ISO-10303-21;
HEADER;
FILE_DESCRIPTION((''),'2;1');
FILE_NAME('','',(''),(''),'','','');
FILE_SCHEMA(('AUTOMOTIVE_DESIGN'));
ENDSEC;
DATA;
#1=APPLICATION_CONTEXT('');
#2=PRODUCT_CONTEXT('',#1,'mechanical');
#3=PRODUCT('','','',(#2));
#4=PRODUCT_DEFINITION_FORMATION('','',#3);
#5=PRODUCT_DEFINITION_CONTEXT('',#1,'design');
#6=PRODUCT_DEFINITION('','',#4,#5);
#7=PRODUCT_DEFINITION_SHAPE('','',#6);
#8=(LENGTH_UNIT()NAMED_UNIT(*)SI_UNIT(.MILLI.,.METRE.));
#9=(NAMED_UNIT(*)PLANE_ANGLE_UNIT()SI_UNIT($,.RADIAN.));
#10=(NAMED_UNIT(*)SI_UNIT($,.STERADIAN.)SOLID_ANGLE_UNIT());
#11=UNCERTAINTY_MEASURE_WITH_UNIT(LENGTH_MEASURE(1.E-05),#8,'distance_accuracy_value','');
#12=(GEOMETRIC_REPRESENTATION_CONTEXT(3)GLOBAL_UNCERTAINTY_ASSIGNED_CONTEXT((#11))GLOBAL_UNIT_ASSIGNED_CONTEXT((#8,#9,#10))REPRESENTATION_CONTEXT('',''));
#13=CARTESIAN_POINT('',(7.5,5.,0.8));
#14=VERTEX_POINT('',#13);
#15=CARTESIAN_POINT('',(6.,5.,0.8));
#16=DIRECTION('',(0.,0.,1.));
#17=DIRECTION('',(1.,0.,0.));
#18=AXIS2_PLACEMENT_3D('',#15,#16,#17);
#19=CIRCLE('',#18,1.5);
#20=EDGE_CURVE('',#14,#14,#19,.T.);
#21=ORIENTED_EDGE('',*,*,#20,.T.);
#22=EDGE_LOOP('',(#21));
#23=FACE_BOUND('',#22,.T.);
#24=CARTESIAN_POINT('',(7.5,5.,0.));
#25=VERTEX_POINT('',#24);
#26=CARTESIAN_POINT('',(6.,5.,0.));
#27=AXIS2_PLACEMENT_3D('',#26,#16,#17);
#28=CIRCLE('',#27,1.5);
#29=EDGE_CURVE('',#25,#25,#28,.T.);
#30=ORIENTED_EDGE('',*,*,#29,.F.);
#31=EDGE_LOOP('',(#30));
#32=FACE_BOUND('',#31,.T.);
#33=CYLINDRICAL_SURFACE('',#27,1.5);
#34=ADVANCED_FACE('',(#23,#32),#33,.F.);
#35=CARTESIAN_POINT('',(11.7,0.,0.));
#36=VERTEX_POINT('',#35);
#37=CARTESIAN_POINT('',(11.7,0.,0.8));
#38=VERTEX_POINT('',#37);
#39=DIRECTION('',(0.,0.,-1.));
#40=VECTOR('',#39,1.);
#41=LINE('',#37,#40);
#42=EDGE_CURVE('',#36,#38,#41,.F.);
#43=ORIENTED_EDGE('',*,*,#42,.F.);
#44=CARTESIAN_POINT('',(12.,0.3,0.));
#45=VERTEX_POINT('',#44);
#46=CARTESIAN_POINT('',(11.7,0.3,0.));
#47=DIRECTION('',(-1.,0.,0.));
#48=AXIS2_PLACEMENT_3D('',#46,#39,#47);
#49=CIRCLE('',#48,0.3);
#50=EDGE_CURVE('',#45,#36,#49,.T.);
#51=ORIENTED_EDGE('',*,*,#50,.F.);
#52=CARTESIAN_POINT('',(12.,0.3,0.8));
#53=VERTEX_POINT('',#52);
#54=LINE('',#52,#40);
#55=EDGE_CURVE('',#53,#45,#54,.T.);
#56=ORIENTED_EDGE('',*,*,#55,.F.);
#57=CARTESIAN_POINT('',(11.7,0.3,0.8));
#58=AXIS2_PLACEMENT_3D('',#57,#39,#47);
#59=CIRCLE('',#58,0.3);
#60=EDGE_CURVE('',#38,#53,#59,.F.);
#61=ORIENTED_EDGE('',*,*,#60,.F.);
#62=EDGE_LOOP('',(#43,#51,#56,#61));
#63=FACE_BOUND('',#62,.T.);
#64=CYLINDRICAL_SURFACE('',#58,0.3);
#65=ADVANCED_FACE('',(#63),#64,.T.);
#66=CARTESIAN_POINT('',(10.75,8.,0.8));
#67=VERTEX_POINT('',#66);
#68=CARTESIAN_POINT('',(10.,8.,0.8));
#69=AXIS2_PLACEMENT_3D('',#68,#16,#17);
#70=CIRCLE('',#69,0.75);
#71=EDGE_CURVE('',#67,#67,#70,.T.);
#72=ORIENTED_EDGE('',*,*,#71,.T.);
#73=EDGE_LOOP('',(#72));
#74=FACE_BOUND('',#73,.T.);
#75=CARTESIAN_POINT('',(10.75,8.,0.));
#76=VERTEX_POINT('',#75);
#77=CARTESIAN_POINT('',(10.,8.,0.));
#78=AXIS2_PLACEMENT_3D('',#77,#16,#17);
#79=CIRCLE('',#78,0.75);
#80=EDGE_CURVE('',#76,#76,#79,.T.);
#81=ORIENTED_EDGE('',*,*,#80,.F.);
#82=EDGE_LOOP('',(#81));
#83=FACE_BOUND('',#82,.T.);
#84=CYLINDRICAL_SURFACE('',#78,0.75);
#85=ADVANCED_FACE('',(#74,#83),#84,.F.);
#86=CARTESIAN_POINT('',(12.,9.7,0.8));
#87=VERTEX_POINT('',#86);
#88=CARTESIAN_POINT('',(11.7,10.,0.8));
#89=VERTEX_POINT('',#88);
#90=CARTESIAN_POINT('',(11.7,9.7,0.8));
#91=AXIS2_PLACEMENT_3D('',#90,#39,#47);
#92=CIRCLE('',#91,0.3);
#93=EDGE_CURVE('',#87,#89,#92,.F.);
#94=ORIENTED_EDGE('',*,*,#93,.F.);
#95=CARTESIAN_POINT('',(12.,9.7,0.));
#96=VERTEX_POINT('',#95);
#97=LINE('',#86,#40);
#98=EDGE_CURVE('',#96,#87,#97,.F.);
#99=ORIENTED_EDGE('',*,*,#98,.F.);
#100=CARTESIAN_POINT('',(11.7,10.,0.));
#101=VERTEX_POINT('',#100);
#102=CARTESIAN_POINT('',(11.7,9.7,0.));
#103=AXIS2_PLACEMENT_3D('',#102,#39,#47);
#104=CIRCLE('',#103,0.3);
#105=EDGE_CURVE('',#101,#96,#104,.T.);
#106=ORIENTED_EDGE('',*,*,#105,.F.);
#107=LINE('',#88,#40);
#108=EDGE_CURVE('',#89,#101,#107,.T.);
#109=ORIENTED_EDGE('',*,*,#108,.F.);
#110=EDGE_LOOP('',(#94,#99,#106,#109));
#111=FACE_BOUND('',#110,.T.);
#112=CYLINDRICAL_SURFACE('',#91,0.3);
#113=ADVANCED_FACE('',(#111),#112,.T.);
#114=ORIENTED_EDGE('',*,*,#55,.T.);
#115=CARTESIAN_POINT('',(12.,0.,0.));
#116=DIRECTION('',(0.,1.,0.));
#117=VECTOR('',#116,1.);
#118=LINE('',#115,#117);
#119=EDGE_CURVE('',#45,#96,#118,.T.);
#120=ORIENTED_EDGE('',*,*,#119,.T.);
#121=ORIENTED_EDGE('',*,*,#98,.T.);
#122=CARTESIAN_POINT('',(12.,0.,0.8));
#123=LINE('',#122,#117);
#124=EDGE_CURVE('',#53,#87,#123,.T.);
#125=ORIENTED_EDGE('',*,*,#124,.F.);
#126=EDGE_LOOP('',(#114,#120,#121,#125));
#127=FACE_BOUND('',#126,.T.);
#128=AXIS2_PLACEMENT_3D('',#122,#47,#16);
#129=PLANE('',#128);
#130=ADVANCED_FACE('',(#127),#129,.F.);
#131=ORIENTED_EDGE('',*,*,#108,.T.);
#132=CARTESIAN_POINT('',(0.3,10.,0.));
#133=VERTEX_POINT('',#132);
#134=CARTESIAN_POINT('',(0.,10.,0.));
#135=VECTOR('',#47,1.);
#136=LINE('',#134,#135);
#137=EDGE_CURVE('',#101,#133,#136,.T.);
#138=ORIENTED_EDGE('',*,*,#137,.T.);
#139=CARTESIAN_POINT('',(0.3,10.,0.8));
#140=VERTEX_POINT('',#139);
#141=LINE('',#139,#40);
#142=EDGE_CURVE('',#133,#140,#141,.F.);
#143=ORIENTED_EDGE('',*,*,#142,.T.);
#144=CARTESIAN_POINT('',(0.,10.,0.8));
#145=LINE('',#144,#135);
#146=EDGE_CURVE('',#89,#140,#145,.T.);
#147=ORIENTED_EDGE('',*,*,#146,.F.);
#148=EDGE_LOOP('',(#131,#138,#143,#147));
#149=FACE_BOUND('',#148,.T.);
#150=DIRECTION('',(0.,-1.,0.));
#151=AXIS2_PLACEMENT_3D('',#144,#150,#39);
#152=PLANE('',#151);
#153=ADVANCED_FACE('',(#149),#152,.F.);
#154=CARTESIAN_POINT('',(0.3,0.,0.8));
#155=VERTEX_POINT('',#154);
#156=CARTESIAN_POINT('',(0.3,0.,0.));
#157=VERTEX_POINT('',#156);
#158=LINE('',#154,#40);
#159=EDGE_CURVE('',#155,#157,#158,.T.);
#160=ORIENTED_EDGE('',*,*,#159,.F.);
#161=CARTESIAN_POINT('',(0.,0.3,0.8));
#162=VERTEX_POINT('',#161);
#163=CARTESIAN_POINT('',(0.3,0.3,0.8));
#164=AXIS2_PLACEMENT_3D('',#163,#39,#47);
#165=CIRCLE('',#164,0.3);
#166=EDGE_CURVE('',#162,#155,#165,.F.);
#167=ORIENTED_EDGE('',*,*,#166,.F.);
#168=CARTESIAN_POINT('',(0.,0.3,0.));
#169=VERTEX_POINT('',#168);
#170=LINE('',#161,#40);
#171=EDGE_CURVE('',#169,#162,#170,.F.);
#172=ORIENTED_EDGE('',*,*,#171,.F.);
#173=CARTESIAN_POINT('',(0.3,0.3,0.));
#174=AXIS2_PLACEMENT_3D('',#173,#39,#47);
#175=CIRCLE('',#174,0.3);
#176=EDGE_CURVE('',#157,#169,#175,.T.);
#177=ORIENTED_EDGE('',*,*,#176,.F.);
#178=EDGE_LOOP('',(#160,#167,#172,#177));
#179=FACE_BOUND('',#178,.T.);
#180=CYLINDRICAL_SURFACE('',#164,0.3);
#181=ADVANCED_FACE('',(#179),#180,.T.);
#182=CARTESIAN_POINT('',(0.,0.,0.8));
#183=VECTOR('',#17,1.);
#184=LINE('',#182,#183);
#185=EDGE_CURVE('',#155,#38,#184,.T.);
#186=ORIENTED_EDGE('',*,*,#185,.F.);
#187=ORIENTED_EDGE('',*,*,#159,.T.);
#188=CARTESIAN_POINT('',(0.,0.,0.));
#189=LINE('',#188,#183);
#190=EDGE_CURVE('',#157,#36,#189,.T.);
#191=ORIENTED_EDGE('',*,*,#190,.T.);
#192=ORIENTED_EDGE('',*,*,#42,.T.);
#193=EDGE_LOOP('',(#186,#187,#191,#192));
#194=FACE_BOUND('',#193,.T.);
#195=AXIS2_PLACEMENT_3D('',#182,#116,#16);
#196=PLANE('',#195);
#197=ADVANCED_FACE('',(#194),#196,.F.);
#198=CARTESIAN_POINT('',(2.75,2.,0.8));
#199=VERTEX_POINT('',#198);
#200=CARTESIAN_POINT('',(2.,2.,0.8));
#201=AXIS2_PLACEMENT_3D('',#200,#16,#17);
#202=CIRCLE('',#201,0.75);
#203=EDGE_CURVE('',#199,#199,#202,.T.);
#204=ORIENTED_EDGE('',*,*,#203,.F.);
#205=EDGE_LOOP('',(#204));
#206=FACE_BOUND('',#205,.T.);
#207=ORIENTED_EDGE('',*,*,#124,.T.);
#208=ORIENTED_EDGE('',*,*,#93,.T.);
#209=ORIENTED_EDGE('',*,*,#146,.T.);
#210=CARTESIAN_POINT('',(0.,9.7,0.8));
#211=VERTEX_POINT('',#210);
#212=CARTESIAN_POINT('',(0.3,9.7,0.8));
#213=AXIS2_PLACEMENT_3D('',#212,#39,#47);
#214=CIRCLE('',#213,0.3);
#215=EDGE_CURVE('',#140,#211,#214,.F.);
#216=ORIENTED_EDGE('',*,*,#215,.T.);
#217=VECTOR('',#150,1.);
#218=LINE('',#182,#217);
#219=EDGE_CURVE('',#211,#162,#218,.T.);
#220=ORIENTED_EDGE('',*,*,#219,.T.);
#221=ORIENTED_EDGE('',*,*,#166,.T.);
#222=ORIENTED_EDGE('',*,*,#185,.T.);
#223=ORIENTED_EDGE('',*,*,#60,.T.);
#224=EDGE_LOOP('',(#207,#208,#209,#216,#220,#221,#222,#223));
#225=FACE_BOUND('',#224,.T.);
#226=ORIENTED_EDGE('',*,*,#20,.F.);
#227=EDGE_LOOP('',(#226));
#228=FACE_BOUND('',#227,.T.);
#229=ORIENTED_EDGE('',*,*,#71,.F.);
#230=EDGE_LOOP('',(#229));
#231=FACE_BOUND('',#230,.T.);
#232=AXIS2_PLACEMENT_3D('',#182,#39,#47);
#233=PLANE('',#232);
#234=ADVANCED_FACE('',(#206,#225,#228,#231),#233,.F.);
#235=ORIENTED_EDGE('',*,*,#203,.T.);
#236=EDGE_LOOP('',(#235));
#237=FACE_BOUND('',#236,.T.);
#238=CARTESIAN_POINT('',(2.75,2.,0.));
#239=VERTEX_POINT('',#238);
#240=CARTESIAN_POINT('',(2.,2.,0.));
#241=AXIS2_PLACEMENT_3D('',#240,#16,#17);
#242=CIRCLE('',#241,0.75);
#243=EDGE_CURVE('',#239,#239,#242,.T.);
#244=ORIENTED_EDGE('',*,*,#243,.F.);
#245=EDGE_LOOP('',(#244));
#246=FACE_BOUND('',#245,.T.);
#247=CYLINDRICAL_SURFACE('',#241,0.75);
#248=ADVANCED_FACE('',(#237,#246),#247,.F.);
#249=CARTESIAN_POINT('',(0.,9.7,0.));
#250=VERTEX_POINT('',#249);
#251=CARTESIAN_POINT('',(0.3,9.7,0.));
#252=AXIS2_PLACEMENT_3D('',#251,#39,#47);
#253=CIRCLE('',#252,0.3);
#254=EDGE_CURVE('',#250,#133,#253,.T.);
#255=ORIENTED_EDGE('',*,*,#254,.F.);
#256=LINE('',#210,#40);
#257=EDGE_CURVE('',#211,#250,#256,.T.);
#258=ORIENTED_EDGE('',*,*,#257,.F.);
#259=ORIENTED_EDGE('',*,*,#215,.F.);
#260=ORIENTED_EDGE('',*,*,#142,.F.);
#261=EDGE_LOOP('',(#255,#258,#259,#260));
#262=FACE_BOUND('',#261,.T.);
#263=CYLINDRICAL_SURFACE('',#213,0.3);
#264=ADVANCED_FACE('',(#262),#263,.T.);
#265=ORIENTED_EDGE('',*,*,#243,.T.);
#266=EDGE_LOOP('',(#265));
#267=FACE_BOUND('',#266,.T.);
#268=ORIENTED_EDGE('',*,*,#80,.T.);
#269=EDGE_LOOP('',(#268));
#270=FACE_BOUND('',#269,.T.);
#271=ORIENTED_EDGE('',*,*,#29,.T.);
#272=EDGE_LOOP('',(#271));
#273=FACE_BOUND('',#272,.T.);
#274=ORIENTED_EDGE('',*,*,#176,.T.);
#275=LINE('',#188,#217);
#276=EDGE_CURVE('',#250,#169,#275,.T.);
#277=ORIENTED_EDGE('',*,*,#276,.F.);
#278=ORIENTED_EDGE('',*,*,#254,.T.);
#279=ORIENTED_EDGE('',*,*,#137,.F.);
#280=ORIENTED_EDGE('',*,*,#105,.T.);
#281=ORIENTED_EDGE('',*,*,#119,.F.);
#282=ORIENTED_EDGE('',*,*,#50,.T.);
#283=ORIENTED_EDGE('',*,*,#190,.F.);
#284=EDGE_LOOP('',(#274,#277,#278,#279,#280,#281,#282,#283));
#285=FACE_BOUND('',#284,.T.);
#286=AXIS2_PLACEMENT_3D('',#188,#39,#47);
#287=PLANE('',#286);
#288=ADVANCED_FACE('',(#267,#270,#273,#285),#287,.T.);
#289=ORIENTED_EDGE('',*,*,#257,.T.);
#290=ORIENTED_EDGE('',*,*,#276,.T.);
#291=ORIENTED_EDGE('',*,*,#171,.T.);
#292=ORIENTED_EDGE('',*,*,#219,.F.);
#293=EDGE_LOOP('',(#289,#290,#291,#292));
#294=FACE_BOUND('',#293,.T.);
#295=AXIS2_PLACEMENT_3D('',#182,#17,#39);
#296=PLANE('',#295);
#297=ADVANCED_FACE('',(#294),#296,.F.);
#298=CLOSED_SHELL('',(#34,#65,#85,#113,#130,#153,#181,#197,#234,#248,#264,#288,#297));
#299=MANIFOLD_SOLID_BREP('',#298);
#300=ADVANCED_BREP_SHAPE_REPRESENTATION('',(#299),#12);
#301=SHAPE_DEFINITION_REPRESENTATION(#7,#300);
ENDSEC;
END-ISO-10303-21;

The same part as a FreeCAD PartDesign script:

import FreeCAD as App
import Part
import Sketcher
from FreeCAD import Vector
Q = App.Units.Quantity


def edges_at(feature, points):
    """Names of the edges that pass closest to the given points."""
    edges = feature.Shape.Edges
    near = lambda p: min(range(len(edges)), key=lambda i: edges[i].distToShape(Part.Vertex(*p))[0])
    return sorted({f"Edge{near(p) + 1}" for p in points})


def add_polygon(sketch, points):
    """Adds a closed chain of lines whose ends are joined by coincident constraints."""
    first, n = sketch.GeometryCount, len(points)
    for a, b in zip(points, points[1:] + points[:1]):
        sketch.addGeometry(Part.LineSegment(App.Vector(*a, 0), App.Vector(*b, 0)), False)
    for i in range(n):
        sketch.addConstraint(Sketcher.Constraint("Coincident", first + i, 2, first + (i + 1) % n, 1))

doc = App.newDocument("Part")
body = doc.addObject("PartDesign::Body", "Body")

sketch1 = body.newObject("Sketcher::SketchObject", "Sketch")
sketch1.AttachmentSupport = (doc.getObject("XY_Plane"), [""])
sketch1.MapMode = "FlatFace"
add_polygon(sketch1, [(0, 10), (0, 0), (12, 0), (12, 10)])
sketch1.addConstraint([
    Sketcher.Constraint("Vertical", 0),
    Sketcher.Constraint("Horizontal", 1),
    Sketcher.Constraint("Vertical", 2),
    Sketcher.Constraint("Horizontal", 3),
    Sketcher.Constraint("Coincident", 0, 2, -1, 1),
    Sketcher.Constraint("DistanceX", 1, 1, 1, 2, Q("12 mm")),
    Sketcher.Constraint("DistanceY", 0, 2, 0, 1, Q("10 mm")),
])
pad1 = body.newObject("PartDesign::Pad", "Pad")
pad1.Profile = sketch1
pad1.Length = 0.8

sketch2 = body.newObject("Sketcher::SketchObject", "Sketch001")
sketch2.AttachmentSupport = (doc.getObject("XY_Plane"), [""])
sketch2.MapMode = "FlatFace"
sketch2.AttachmentOffset = App.Placement(Vector(0, 0, 0.8), App.Rotation())
sketch2.addGeometry([
    Part.Circle(Vector(2, 2, 0), Vector(0, 0, 1), 0.8),
    Part.Circle(Vector(6, 5, 0), Vector(0, 0, 1), 1.5),
    Part.Circle(Vector(10, 8, 0), Vector(0, 0, 1), 0.8),
], False)
sketch2.addConstraint([
    Sketcher.Constraint("Equal", 0, 2),
    Sketcher.Constraint("Diameter", 1, Q("3 mm")),
    Sketcher.Constraint("Diameter", 0, Q("1.5 mm")),
    Sketcher.Constraint("DistanceX", -1, 1, 0, 3, Q("2 mm")),
    Sketcher.Constraint("DistanceY", -1, 1, 0, 3, Q("2 mm")),
    Sketcher.Constraint("DistanceX", -1, 1, 1, 3, Q("6 mm")),
    Sketcher.Constraint("DistanceY", -1, 1, 1, 3, Q("5 mm")),
    Sketcher.Constraint("DistanceX", -1, 1, 2, 3, Q("10 mm")),
    Sketcher.Constraint("DistanceY", -1, 1, 2, 3, Q("8 mm")),
])
pocket1 = body.newObject("PartDesign::Pocket", "Pocket")
pocket1.Profile = sketch2
pocket1.Type = "ThroughAll"
doc.recompute()

fillet = body.newObject("PartDesign::Fillet", "Fillet")
fillet.Base = (pocket1, edges_at(pocket1, [
    (0, 10, 0.4),
    (12, 10, 0.4),
    (12, 0, 0.4),
    (0, 0, 0.4),
]))
fillet.Radius = 0.3

doc.recompute()
